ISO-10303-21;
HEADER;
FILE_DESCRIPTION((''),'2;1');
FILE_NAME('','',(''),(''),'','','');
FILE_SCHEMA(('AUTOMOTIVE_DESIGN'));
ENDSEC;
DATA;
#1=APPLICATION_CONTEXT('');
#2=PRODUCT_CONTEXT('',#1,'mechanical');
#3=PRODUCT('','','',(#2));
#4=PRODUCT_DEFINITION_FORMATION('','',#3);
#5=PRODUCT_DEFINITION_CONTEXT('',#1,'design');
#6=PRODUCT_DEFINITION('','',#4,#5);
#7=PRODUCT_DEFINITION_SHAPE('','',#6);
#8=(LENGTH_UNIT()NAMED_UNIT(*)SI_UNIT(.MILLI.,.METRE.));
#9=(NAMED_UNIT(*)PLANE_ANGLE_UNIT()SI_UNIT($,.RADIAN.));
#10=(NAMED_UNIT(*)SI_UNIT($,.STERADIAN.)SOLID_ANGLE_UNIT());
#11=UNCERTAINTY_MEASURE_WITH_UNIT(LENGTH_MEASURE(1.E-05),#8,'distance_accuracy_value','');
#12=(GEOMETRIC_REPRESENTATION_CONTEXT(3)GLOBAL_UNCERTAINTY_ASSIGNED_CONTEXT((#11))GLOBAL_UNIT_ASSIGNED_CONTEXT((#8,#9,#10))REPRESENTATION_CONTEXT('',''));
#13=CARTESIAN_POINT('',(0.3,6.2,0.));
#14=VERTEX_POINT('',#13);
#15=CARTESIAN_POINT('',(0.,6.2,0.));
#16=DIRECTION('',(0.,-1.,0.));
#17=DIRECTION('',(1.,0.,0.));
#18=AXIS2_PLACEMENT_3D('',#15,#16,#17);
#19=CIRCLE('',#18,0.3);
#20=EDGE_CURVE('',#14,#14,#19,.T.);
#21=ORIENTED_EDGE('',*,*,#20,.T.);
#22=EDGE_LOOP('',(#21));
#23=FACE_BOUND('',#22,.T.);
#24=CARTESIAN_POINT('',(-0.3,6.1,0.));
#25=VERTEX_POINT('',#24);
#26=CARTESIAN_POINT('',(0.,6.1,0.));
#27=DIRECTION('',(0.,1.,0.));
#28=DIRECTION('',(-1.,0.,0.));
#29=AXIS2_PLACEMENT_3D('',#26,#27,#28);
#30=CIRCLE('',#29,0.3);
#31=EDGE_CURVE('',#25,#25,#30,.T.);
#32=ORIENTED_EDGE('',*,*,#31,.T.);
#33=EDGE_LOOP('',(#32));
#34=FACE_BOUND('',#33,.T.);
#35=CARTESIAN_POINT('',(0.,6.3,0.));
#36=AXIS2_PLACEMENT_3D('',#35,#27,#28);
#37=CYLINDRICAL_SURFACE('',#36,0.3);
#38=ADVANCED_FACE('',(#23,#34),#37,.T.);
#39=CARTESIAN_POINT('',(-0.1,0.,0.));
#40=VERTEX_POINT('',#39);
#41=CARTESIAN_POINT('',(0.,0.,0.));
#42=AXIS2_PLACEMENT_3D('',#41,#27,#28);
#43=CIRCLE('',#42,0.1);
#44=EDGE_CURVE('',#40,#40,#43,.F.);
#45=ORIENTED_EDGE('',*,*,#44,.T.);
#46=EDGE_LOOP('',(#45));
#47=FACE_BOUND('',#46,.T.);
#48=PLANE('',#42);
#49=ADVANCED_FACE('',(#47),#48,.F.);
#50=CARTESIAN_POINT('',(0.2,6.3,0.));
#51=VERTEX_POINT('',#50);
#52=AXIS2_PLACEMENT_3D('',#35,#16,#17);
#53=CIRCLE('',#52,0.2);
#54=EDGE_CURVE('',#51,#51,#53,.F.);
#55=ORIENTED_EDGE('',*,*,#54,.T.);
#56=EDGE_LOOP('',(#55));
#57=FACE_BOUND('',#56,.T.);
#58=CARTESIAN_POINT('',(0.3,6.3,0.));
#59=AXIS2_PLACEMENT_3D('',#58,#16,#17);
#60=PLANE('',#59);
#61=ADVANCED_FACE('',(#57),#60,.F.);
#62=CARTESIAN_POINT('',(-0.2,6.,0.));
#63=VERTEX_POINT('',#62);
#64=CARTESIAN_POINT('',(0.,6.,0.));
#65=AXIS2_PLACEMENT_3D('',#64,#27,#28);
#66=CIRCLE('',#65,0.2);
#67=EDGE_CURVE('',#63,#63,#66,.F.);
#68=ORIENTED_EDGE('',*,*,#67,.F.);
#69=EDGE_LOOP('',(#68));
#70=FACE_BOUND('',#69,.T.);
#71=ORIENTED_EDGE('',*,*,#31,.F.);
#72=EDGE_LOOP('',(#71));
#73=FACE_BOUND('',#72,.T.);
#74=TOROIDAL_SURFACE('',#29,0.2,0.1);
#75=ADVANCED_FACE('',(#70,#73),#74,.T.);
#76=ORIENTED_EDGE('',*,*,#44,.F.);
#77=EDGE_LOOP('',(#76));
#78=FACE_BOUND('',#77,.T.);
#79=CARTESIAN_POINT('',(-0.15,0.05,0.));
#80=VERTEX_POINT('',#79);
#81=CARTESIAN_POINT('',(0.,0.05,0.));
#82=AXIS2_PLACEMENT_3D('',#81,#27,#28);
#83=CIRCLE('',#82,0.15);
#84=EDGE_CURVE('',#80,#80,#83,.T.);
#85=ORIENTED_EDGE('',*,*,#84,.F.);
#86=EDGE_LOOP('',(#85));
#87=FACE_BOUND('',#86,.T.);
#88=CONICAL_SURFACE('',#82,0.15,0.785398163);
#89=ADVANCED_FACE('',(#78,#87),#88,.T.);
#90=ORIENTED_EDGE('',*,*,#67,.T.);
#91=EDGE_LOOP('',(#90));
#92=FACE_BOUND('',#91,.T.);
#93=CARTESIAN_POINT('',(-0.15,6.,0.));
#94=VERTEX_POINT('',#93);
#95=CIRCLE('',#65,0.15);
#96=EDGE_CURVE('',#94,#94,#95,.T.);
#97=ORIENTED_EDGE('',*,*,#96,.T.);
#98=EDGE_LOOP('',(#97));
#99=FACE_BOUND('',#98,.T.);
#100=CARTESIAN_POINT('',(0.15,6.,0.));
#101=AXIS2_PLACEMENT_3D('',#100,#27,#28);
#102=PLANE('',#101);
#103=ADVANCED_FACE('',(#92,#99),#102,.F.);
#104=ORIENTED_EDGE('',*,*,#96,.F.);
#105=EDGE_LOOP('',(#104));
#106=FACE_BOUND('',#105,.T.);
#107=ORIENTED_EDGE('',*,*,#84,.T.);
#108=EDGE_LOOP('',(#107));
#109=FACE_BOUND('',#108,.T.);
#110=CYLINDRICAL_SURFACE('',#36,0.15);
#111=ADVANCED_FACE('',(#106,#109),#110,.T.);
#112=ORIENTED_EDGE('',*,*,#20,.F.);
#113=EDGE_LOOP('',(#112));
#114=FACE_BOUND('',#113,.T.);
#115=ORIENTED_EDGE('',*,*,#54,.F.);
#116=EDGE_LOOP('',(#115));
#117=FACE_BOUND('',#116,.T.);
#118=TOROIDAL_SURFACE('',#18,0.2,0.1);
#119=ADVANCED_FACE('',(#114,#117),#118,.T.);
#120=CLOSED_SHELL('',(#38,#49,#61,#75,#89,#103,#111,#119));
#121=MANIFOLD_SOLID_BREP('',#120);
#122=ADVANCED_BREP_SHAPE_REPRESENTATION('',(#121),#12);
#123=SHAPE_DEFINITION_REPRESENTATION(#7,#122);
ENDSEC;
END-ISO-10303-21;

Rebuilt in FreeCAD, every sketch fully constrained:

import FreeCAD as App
import Part
import Sketcher

V = App.Vector


def edges_at(feature, points):
    """Names of the edges that pass closest to the given points."""
    edges = feature.Shape.Edges
    near = lambda p: min(range(len(edges)), key=lambda i: edges[i].distToShape(Part.Vertex(*p))[0])
    return sorted({f"Edge{near(p) + 1}" for p in points})


def add_polygon(sketch, points):
    """Adds a closed chain of lines whose ends are joined by coincident constraints."""
    first, n = sketch.GeometryCount, len(points)
    for a, b in zip(points, points[1:] + points[:1]):
        sketch.addGeometry(Part.LineSegment(App.Vector(*a, 0), App.Vector(*b, 0)), False)
    for i in range(n):
        sketch.addConstraint(Sketcher.Constraint("Coincident", first + i, 2, first + (i + 1) % n, 1))

doc = App.newDocument("Part")
params = doc.addObject("Spreadsheet::Sheet", "Params")
for row, (alias, value) in enumerate([
    ("sketch1_height", "6 mm"),
    ("sketch1_width", "0.3 mm"),
    ("revolution_angle", "360 deg"),
    ("fillet_radius", "0.1 mm"),
    ("chamfer_size", "0.05 mm"),
], start=1):
    params.set(f"A{row}", alias)
    params.set(f"B{row}", "=" + value)
    params.setAlias(f"B{row}", alias)

body = doc.addObject("PartDesign::Body", "Body")

sketch1 = body.newObject("Sketcher::SketchObject", "Sketch")
sketch1.AttachmentSupport = (doc.getObject("XY_Plane"), [""])
sketch1.MapMode = "FlatFace"
add_polygon(sketch1, [(0, 0), (0.15, 0), (0.15, 6), (0.3, 6), (0.3, 6.3), (0, 6.3)])
sketch1.addConstraint([
    Sketcher.Constraint("Horizontal", 0),
    Sketcher.Constraint("Vertical", 1),
    Sketcher.Constraint("Horizontal", 2),
    Sketcher.Constraint("Vertical", 3),
    Sketcher.Constraint("Horizontal", 4),
    Sketcher.Constraint("Vertical", 5),
    Sketcher.Constraint("Coincident", 5, 2, -1, 1),
    Sketcher.Constraint("Equal", 0, 2),
    Sketcher.Constraint("Equal", 4, 3),
    Sketcher.Constraint("DistanceY", 1, 1, 1, 2, 6.0),
    Sketcher.Constraint("DistanceX", 4, 2, 4, 1, 0.3),
])
sketch1.setExpression("Constraints[15]", "Params.sketch1_height")
sketch1.setExpression("Constraints[16]", "Params.sketch1_width")
revolution = body.newObject("PartDesign::Revolution", "Revolution")
revolution.Profile = sketch1
revolution.ReferenceAxis = (sketch1, ["V_Axis"])
revolution.setExpression("Angle", "Params.revolution_angle")
doc.recompute()

fillet = body.newObject("PartDesign::Fillet", "Fillet")
fillet.Base = (revolution, edges_at(revolution, [(0.3, 6.3, 0), (0.3, 6, 0)]))
fillet.setExpression("Radius", "Params.fillet_radius")
doc.recompute()

chamfer = body.newObject("PartDesign::Chamfer", "Chamfer")
chamfer.Base = (fillet, edges_at(fillet, [(0.15, 0, 0)]))
chamfer.setExpression("Size", "Params.chamfer_size")

doc.recompute()
